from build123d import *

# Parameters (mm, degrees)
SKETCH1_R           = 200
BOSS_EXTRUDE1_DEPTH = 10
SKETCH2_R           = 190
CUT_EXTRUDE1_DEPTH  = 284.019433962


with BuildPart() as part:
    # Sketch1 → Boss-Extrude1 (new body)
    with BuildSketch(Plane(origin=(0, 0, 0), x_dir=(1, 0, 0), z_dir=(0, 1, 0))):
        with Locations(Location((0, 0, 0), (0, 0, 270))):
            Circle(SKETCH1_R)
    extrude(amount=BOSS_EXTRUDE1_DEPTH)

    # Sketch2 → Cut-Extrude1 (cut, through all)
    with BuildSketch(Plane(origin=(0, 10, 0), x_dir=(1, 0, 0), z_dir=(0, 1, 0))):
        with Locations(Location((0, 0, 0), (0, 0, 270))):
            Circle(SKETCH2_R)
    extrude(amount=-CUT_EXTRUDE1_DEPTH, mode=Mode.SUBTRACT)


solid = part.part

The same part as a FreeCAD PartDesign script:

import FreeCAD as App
import Part
import Sketcher
from FreeCAD import Vector

doc = App.newDocument("Part")
params = doc.addObject("Spreadsheet::Sheet", "Params")
for row, (alias, value) in enumerate([
    ("sketch1_diameter", "400 mm"),
    ("pad1_length", "10 mm"),
    ("sketch2_diameter", "380 mm"),
], start=1):
    params.set(f"A{row}", alias)
    params.set(f"B{row}", "=" + value)
    params.setAlias(f"B{row}", alias)

body = doc.addObject("PartDesign::Body", "Body")

# Sketch on XZ plane
sketch1 = body.newObject("Sketcher::SketchObject", "Sketch")
sketch1.AttachmentSupport = (doc.getObject("XZ_Plane"), [""])
sketch1.MapMode = "FlatFace"
sketch1.addGeometry(Part.Circle(Vector(0, 0, 0), Vector(0, 0, 1), 200), False)
sketch1.addConstraint([
    Sketcher.Constraint("Coincident", 0, 3, -1, 1),
    Sketcher.Constraint("Diameter", 0, 400.0),
])
sketch1.setExpression("Constraints[1]", "Params.sketch1_diameter")
pad1 = body.newObject("PartDesign::Pad", "Pad")
pad1.Profile = sketch1
pad1.setExpression("Length", "Params.pad1_length")
pad1.Reversed = True

# Sketch on XZ plane
sketch2 = body.newObject("Sketcher::SketchObject", "Sketch001")
sketch2.AttachmentSupport = (doc.getObject("XZ_Plane"), [""])
sketch2.MapMode = "FlatFace"
sketch2.AttachmentOffset = App.Placement(Vector(0, 0, -10), App.Rotation())
sketch2.addGeometry(Part.Circle(Vector(0, 0, 0), Vector(0, 0, 1), 190), False)
sketch2.addConstraint([
    Sketcher.Constraint("Coincident", 0, 3, -1, 1),
    Sketcher.Constraint("Diameter", 0, 380.0),
])
sketch2.setExpression("Constraints[1]", "Params.sketch2_diameter")
pocket1 = body.newObject("PartDesign::Pocket", "Pocket")
pocket1.Profile = sketch2
pocket1.Type = "ThroughAll"
pocket1.Reversed = True

doc.recompute()
